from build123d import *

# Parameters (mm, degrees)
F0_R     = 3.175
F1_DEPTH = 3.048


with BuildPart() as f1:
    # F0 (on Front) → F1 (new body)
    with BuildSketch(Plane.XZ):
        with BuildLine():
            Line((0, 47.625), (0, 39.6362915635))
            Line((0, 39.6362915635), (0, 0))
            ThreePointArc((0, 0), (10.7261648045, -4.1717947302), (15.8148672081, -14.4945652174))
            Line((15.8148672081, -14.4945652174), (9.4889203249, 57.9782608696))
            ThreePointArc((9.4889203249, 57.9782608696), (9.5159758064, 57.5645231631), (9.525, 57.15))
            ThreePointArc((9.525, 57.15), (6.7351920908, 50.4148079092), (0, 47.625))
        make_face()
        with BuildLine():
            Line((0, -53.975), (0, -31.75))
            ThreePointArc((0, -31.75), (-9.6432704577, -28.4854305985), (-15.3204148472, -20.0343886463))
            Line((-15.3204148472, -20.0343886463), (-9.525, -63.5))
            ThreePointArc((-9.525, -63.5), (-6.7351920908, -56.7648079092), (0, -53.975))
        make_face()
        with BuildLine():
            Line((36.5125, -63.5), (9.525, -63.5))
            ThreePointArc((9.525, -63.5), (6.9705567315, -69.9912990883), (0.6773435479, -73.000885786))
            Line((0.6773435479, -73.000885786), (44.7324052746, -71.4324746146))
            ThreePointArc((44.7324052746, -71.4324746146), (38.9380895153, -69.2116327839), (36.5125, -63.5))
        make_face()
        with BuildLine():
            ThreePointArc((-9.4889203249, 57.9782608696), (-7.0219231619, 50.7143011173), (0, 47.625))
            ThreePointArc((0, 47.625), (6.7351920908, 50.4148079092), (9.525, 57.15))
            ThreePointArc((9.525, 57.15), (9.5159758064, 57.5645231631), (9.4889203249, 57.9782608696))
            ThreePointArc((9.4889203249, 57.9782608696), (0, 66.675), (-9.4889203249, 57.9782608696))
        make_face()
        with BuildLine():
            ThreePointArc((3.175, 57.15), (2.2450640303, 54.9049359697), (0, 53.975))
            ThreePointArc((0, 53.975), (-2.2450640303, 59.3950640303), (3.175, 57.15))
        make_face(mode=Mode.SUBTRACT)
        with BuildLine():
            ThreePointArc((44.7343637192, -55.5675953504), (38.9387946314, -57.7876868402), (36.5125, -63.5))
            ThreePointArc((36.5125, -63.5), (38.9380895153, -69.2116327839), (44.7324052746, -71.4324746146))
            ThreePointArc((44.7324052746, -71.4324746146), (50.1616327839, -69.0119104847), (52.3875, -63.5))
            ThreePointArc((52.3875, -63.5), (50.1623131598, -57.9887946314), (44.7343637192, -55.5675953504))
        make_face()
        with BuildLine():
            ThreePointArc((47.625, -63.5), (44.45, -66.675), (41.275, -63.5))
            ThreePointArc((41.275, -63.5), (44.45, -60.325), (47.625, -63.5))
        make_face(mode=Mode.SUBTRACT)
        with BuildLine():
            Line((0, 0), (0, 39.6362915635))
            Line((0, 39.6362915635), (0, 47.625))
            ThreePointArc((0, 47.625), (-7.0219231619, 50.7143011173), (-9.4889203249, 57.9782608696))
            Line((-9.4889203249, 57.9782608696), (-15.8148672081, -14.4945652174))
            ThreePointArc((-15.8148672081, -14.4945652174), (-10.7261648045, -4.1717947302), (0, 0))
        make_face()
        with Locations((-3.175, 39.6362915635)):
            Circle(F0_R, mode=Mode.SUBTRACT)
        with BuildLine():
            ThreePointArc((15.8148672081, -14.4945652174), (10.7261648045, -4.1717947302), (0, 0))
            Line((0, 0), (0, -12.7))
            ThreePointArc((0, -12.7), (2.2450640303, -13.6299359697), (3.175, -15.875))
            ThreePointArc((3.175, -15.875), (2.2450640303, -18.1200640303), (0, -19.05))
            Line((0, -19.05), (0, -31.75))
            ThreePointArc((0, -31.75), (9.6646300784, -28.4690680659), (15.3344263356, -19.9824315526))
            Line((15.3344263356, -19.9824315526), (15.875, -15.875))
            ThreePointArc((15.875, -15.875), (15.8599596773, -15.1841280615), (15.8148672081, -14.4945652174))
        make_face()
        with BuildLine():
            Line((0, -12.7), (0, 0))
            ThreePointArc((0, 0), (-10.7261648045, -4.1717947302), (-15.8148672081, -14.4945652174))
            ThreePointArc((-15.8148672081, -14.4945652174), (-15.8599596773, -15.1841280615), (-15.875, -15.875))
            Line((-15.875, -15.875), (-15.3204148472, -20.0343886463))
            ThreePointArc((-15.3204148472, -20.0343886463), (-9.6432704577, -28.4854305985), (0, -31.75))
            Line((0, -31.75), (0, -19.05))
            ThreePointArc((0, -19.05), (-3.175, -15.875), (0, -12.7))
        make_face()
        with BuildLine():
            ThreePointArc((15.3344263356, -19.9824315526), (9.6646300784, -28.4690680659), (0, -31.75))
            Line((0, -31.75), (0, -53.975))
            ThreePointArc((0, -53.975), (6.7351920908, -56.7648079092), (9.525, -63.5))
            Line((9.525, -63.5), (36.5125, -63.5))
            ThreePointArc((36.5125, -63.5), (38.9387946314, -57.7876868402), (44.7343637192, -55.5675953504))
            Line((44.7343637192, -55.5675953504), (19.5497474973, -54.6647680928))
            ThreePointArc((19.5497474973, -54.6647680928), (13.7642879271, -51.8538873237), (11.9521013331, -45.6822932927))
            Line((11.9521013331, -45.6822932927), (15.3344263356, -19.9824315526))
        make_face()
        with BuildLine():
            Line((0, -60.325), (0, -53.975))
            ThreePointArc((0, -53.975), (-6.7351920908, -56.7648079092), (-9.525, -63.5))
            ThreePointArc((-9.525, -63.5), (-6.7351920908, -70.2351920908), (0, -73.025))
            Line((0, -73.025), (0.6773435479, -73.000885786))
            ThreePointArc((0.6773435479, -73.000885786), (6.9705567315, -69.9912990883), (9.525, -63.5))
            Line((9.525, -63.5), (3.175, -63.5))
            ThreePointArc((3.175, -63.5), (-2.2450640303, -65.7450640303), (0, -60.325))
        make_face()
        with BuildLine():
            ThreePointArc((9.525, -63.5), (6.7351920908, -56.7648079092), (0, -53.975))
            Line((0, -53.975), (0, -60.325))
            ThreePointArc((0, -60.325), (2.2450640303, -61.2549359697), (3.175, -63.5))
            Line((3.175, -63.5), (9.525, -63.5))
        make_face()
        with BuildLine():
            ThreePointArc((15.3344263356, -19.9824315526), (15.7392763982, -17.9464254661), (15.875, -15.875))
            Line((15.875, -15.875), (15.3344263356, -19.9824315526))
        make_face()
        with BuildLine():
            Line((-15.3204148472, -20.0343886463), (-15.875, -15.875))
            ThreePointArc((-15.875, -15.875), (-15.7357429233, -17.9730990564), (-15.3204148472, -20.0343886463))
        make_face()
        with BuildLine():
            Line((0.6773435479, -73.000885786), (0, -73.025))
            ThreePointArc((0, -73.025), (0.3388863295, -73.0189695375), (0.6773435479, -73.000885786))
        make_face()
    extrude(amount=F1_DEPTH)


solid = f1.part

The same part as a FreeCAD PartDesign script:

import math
import FreeCAD as App
import Part
import Sketcher
Q = App.Units.Quantity

doc = App.newDocument("Part")
body = doc.addObject("PartDesign::Body", "Body")

# Sketch on XZ plane
sketch1 = body.newObject("Sketcher::SketchObject", "Sketch")
sketch1.AttachmentSupport = (doc.getObject("XZ_Plane"), [""])
sketch1.MapMode = "FlatFace"
sketch1.addGeometry([
    Part.LineSegment(App.Vector(44.734364, -55.567595, 0), App.Vector(19.549747, -54.664768, 0)),  # 0
    Part.ArcOfCircle(Part.Circle(App.Vector(19.834331, -46.719663, 0), App.Vector(0, 0, 1), 7.9502), math.radians(172.502468), math.radians(267.948616)),  # 1
    Part.LineSegment(App.Vector(11.952101, -45.682293, 0), App.Vector(15.334426, -19.982432, 0)),  # 2
    Part.ArcOfCircle(Part.Circle(App.Vector(0, -15.875, 0), App.Vector(0, 0, 1), 15.875), math.radians(-14.995065), math.radians(0)),  # 3
    Part.ArcOfCircle(Part.Circle(App.Vector(0, -15.875, 0), App.Vector(0, 0, 1), 15.875), math.radians(0), math.radians(4.988542)),  # 4
    Part.LineSegment(App.Vector(15.814867, -14.494565, 0), App.Vector(9.48892, 57.978261, 0)),  # 5
    Part.ArcOfCircle(Part.Circle(App.Vector(0, 57.15, 0), App.Vector(0, 0, 1), 9.525), math.radians(4.988542), math.radians(175.011458)),  # 6
    Part.LineSegment(App.Vector(-9.48892, 57.978261, 0), App.Vector(-15.814867, -14.494565, 0)),  # 7
    Part.ArcOfCircle(Part.Circle(App.Vector(0, -15.875, 0), App.Vector(0, 0, 1), 15.875), math.radians(175.011458), math.radians(180)),  # 8
    Part.ArcOfCircle(Part.Circle(App.Vector(0, -15.875, 0), App.Vector(0, 0, 1), 15.875), math.radians(-180), math.radians(-164.810713)),  # 9
    Part.LineSegment(App.Vector(-15.320415, -20.034389, 0), App.Vector(-9.525, -63.5, 0)),  # 10
    Part.ArcOfCircle(Part.Circle(App.Vector(0, -63.5, 0), App.Vector(0, 0, 1), 9.525), math.radians(180), math.radians(270)),  # 11
    Part.ArcOfCircle(Part.Circle(App.Vector(0, -63.5, 0), App.Vector(0, 0, 1), 9.525), math.radians(-90), math.radians(-85.92213)),  # 12
    Part.LineSegment(App.Vector(0.677344, -73.000886, 0), App.Vector(44.732405, -71.432475, 0)),  # 13
    Part.ArcOfCircle(Part.Circle(App.Vector(44.45, -63.5, 0), App.Vector(0, 0, 1), 7.9375), math.radians(-87.961065), math.radians(0)),  # 14
    Part.ArcOfCircle(Part.Circle(App.Vector(44.45, -63.5, 0), App.Vector(0, 0, 1), 7.9375), math.radians(0), math.radians(87.946919)),  # 15
    Part.ArcOfCircle(Part.Circle(App.Vector(0, -63.5, 0), App.Vector(0, 0, 1), 3.175), math.radians(0), math.radians(90)),  # 16
    Part.ArcOfCircle(Part.Circle(App.Vector(0, -63.5, 0), App.Vector(0, 0, 1), 3.175), math.radians(90), math.radians(360)),  # 17
    Part.ArcOfCircle(Part.Circle(App.Vector(0, -15.875, 0), App.Vector(0, 0, 1), 3.175), math.radians(0), math.radians(90)),  # 18
    Part.ArcOfCircle(Part.Circle(App.Vector(0, -15.875, 0), App.Vector(0, 0, 1), 3.175), math.radians(-90), math.radians(0)),  # 19
    Part.ArcOfCircle(Part.Circle(App.Vector(0, -15.875, 0), App.Vector(0, 0, 1), 3.175), math.radians(90), math.radians(270)),  # 20
    Part.Circle(App.Vector(44.45, -63.5, 0), App.Vector(0, 0, 1), 3.175),  # 21
    Part.Circle(App.Vector(-3.175, 39.636292, 0), App.Vector(0, 0, 1), 3.175),  # 22
    Part.ArcOfCircle(Part.Circle(App.Vector(0, 57.15, 0), App.Vector(0, 0, 1), 3.175), math.radians(0), math.radians(270)),  # 23
    Part.ArcOfCircle(Part.Circle(App.Vector(0, 57.15, 0), App.Vector(0, 0, 1), 3.175), math.radians(-90), math.radians(0)),  # 24
], False)
sketch1.addConstraint([
    Sketcher.Constraint("Coincident", 0, 2, 1, 2),
    Sketcher.Constraint("Coincident", 1, 1, 2, 1),
    Sketcher.Constraint("Coincident", 2, 2, 3, 1),
    Sketcher.Constraint("Coincident", 3, 2, 4, 1),
    Sketcher.Constraint("Coincident", 4, 2, 5, 1),
    Sketcher.Constraint("Coincident", 5, 2, 6, 1),
    Sketcher.Constraint("Coincident", 6, 2, 7, 1),
    Sketcher.Constraint("Coincident", 7, 2, 8, 1),
    Sketcher.Constraint("Coincident", 8, 2, 9, 1),
    Sketcher.Constraint("Coincident", 9, 2, 10, 1),
    Sketcher.Constraint("Coincident", 10, 2, 11, 1),
    Sketcher.Constraint("Coincident", 11, 2, 12, 1),
    Sketcher.Constraint("Coincident", 12, 2, 13, 1),
    Sketcher.Constraint("Coincident", 13, 2, 14, 1),
    Sketcher.Constraint("Coincident", 14, 2, 15, 1),
    Sketcher.Constraint("Coincident", 15, 2, 0, 1),
    Sketcher.Constraint("Coincident", 16, 1, 17, 2),
    Sketcher.Constraint("Coincident", 17, 1, 16, 2),
    Sketcher.Constraint("Coincident", 18, 1, 19, 2),
    Sketcher.Constraint("Coincident", 19, 1, 20, 2),
    Sketcher.Constraint("Coincident", 20, 1, 18, 2),
    Sketcher.Constraint("Coincident", 23, 1, 24, 2),
    Sketcher.Constraint("Coincident", 24, 1, 23, 2),
    Sketcher.Constraint("Coincident", 4, 3, 3, 3),
    Sketcher.Constraint("Coincident", 8, 3, 3, 3),
    Sketcher.Constraint("Coincident", 9, 3, 3, 3),
    Sketcher.Constraint("Coincident", 12, 3, 11, 3),
    Sketcher.Constraint("Coincident", 15, 3, 14, 3),
    Sketcher.Constraint("Coincident", 16, 3, 11, 3),
    Sketcher.Constraint("Coincident", 18, 3, 3, 3),
    Sketcher.Constraint("Coincident", 19, 3, 3, 3),
    Sketcher.Constraint("Coincident", 21, 3, 14, 3),
    Sketcher.Constraint("Coincident", 23, 3, 6, 3),
    Sketcher.Constraint("PointOnObject", 3, 3, -2),
    Sketcher.Constraint("PointOnObject", 6, 3, -2),
    Sketcher.Constraint("PointOnObject", 11, 3, -2),
    Sketcher.Constraint("PointOnObject", 17, 3, -2),
    Sketcher.Constraint("PointOnObject", 20, 3, -2),
    Sketcher.Constraint("PointOnObject", 24, 3, -2),
    Sketcher.Constraint("PointOnObject", 11, 2, -2),
    Sketcher.Constraint("PointOnObject", 17, 1, -2),
    Sketcher.Constraint("PointOnObject", 19, 1, -2),
    Sketcher.Constraint("PointOnObject", 20, 1, -2),
    Sketcher.Constraint("PointOnObject", 24, 1, -2),
    Sketcher.Constraint("Diameter", 21, Q("0.25 in")),
    Sketcher.Constraint("Diameter", 22, Q("0.25 in")),
    Sketcher.Constraint("Radius", 1, Q("0.313 in")),
    Sketcher.Constraint("Radius", 3, Q("0.625 in")),
    Sketcher.Constraint("Radius", 6, Q("0.375 in")),
    Sketcher.Constraint("Radius", 8, Q("0.625 in")),
    Sketcher.Constraint("Radius", 11, Q("0.375 in")),
    Sketcher.Constraint("Radius", 14, Q("0.3125 in")),
    Sketcher.Constraint("Radius", 16, Q("0.125 in")),
    Sketcher.Constraint("Radius", 18, Q("0.125 in")),
    Sketcher.Constraint("Radius", 23, Q("0.125 in")),
    Sketcher.Constraint("DistanceY", 11, 3, -1, 1, Q("2.5 in")),
    Sketcher.Constraint("DistanceY", 14, 3, -1, 1, Q("2.5 in")),
    Sketcher.Constraint("DistanceY", 10, 2, -1, 1, Q("2.5 in")),
    Sketcher.Constraint("DistanceY", 14, 2, -1, 1, Q("2.5 in")),
    Sketcher.Constraint("DistanceY", 16, 1, -1, 1, Q("2.5 in")),
    Sketcher.Constraint("DistanceY", 20, 1, -1, 1, Q("0.5 in")),
    Sketcher.Constraint("DistanceY", -1, 1, 6, 3, Q("2.25 in")),
    Sketcher.Constraint("DistanceX", -1, 1, 14, 3, Q("1.75 in")),
    Sketcher.Constraint("DistanceY", -1, 1, 23, 1, Q("2.25 in")),
    Sketcher.Constraint("DistanceX", 22, 3, -1, 1, Q("0.125 in")),
    Sketcher.Constraint("DistanceY", 3, 2, -1, 1, Q("0.625 in")),
    Sketcher.Constraint("DistanceY", 8, 2, -1, 1, Q("0.625 in")),
    Sketcher.Constraint("DistanceY", 18, 1, -1, 1, Q("0.625 in")),
    Sketcher.Constraint("DistanceX", -1, 1, 1, 1, Q("11.952101 mm")),
    Sketcher.Constraint("Distance", 5, Q("72.748389 mm")),
    Sketcher.Constraint("Distance", 7, Q("72.748389 mm")),
    Sketcher.Constraint("Distance", 10, Q("43.85027 mm")),
    Sketcher.Constraint("Distance", 13, Q("44.082972 mm")),
    Sketcher.Constraint("DistanceX", -1, 1, 1, 3, Q("19.834331 mm")),
    Sketcher.Constraint("DistanceY", -1, 1, 22, 3, Q("39.636292 mm")),
    Sketcher.Constraint("DistanceY", 0, 2, -1, 1, Q("54.664768 mm")),
    Sketcher.Constraint("DistanceY", 2, 2, -1, 1, Q("19.982432 mm")),
    Sketcher.Constraint("DistanceX", -1, 1, 5, 2, Q("9.48892 mm")),
    Sketcher.Constraint("DistanceX", 6, 2, -1, 1, Q("9.48892 mm")),
    Sketcher.Constraint("DistanceY", 13, 2, 1, 3, Q("24.712811 mm")),
    Sketcher.Constraint("DistanceX", 13, 2, 15, 2, Q("0.001958 mm")),
    Sketcher.Constraint("DistanceY", 13, 2, 15, 2, Q("15.864879 mm")),
])
pad1 = body.newObject("PartDesign::Pad", "Pad")
pad1.Profile = sketch1
pad1.Length = Q("0.12 in")

doc.recompute()
